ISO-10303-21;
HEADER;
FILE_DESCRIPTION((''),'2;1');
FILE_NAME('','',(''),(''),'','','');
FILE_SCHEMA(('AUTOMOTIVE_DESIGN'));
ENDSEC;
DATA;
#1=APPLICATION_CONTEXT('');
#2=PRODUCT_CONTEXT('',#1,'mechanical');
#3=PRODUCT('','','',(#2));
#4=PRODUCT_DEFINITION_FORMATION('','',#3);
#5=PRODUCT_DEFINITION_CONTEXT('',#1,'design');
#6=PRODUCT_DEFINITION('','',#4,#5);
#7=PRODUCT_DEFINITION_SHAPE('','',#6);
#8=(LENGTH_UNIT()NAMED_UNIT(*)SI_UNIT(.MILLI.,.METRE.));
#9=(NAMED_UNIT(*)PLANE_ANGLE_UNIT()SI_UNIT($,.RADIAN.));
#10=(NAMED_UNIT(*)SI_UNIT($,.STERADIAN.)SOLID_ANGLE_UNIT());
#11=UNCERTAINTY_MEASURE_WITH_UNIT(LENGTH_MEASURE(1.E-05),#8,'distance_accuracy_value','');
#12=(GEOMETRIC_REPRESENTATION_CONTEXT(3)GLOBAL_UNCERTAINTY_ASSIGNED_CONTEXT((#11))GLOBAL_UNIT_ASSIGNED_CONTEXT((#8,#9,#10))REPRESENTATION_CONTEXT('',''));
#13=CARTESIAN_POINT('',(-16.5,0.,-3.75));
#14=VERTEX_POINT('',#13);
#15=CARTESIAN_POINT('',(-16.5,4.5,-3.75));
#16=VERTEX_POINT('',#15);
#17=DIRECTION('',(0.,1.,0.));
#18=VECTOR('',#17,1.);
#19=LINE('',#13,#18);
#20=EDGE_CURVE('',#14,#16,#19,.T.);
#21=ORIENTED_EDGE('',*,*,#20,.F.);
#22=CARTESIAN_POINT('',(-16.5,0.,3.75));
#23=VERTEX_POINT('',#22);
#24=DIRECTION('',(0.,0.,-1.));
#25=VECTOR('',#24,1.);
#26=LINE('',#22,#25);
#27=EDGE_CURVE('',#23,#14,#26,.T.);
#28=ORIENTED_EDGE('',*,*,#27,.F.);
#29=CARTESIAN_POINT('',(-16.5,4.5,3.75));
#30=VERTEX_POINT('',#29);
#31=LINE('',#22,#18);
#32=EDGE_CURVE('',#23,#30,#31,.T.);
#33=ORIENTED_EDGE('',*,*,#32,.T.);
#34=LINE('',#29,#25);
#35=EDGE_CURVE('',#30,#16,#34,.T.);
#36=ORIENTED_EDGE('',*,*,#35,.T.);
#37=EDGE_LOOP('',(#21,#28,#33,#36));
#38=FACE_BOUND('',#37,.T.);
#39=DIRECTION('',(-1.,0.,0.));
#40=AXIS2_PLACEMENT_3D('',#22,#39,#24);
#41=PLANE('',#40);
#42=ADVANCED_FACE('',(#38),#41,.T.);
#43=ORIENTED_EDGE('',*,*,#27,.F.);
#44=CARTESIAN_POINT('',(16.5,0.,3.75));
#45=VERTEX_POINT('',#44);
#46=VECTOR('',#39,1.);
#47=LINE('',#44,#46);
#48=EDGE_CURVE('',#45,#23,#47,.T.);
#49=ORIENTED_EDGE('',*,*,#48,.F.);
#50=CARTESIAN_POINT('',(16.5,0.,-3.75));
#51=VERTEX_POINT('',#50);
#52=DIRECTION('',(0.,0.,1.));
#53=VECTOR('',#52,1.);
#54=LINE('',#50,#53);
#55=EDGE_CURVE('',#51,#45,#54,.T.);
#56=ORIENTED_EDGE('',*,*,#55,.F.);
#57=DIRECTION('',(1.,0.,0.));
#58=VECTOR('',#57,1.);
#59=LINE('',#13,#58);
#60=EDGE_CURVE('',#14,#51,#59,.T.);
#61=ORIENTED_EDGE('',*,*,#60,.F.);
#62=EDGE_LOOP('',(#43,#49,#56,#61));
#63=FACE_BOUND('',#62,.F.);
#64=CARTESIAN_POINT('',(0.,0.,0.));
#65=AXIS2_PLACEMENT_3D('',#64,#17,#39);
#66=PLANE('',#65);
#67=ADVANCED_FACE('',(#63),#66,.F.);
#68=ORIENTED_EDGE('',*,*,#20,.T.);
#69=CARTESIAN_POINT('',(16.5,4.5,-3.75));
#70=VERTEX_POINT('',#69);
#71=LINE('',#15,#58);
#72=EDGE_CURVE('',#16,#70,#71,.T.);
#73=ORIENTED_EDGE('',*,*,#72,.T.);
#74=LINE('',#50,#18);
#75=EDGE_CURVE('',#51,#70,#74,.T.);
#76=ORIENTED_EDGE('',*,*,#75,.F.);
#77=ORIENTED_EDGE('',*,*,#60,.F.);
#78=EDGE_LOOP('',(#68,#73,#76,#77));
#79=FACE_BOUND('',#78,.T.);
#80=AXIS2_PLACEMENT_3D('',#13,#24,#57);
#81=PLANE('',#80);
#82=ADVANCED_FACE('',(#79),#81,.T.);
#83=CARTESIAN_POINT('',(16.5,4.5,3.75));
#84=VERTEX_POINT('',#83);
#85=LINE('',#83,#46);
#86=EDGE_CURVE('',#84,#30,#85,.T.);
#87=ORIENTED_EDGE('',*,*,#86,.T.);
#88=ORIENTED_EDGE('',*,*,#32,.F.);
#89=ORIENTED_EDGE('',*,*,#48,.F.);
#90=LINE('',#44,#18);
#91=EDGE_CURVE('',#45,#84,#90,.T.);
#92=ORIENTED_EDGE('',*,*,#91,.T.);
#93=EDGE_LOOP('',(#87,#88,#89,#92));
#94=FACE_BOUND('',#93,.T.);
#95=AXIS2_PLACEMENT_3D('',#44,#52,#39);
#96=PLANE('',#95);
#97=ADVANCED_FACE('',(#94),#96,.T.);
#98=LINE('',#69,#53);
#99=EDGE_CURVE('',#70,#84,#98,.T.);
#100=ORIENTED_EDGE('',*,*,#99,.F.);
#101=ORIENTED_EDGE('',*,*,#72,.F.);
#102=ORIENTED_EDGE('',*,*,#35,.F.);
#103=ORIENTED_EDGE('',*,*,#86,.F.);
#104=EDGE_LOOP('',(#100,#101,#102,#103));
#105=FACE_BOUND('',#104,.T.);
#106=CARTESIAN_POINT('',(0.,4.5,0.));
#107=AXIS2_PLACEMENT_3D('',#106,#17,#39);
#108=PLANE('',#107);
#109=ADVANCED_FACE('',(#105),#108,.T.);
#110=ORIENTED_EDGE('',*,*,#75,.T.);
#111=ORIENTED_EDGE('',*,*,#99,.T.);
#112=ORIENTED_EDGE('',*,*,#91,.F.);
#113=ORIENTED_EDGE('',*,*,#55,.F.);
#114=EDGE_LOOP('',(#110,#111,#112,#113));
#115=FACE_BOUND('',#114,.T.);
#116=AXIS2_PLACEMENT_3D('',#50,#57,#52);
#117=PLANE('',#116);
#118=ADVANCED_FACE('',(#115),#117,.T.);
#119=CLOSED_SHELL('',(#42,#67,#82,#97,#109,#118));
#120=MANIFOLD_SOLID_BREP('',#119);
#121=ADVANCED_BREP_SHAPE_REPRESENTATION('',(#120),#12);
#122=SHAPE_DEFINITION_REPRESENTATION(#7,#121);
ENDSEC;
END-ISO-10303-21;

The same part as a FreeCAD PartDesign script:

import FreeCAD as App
import Part
import Sketcher
Q = App.Units.Quantity

doc = App.newDocument("Part")
body = doc.addObject("PartDesign::Body", "Body")

# Sketch on XZ plane
sketch1 = body.newObject("Sketcher::SketchObject", "Sketch")
sketch1.AttachmentSupport = (doc.getObject("XZ_Plane"), [""])
sketch1.MapMode = "FlatFace"
sketch1.addGeometry([
    Part.LineSegment(App.Vector(16, 4, 0), App.Vector(16, -4, 0)),
    Part.LineSegment(App.Vector(16, -4, 0), App.Vector(-16, -4, 0)),
    Part.LineSegment(App.Vector(-16, -4, 0), App.Vector(-16, 4, 0)),
    Part.LineSegment(App.Vector(-16, 4, 0), App.Vector(16, 4, 0)),
], False)
sketch1.addConstraint([
    Sketcher.Constraint("Coincident", 0, 2, 1, 1),
    Sketcher.Constraint("Coincident", 1, 2, 2, 1),
    Sketcher.Constraint("Coincident", 2, 2, 3, 1),
    Sketcher.Constraint("Coincident", 3, 2, 0, 1),
    Sketcher.Constraint("Vertical", 0),
    Sketcher.Constraint("Horizontal", 1),
    Sketcher.Constraint("Vertical", 2),
    Sketcher.Constraint("Horizontal", 3),
    Sketcher.Constraint("Symmetric", 0, 2, 2, 2, -1, 1),
    Sketcher.Constraint("DistanceX", 1, 2, 1, 1, Q("33 mm")),
    Sketcher.Constraint("DistanceY", 0, 2, 0, 1, Q("7.5 mm")),
])
pad1 = body.newObject("PartDesign::Pad", "Pad")
pad1.Profile = sketch1
pad1.Length = 4.5
pad1.Reversed = True

doc.recompute()
